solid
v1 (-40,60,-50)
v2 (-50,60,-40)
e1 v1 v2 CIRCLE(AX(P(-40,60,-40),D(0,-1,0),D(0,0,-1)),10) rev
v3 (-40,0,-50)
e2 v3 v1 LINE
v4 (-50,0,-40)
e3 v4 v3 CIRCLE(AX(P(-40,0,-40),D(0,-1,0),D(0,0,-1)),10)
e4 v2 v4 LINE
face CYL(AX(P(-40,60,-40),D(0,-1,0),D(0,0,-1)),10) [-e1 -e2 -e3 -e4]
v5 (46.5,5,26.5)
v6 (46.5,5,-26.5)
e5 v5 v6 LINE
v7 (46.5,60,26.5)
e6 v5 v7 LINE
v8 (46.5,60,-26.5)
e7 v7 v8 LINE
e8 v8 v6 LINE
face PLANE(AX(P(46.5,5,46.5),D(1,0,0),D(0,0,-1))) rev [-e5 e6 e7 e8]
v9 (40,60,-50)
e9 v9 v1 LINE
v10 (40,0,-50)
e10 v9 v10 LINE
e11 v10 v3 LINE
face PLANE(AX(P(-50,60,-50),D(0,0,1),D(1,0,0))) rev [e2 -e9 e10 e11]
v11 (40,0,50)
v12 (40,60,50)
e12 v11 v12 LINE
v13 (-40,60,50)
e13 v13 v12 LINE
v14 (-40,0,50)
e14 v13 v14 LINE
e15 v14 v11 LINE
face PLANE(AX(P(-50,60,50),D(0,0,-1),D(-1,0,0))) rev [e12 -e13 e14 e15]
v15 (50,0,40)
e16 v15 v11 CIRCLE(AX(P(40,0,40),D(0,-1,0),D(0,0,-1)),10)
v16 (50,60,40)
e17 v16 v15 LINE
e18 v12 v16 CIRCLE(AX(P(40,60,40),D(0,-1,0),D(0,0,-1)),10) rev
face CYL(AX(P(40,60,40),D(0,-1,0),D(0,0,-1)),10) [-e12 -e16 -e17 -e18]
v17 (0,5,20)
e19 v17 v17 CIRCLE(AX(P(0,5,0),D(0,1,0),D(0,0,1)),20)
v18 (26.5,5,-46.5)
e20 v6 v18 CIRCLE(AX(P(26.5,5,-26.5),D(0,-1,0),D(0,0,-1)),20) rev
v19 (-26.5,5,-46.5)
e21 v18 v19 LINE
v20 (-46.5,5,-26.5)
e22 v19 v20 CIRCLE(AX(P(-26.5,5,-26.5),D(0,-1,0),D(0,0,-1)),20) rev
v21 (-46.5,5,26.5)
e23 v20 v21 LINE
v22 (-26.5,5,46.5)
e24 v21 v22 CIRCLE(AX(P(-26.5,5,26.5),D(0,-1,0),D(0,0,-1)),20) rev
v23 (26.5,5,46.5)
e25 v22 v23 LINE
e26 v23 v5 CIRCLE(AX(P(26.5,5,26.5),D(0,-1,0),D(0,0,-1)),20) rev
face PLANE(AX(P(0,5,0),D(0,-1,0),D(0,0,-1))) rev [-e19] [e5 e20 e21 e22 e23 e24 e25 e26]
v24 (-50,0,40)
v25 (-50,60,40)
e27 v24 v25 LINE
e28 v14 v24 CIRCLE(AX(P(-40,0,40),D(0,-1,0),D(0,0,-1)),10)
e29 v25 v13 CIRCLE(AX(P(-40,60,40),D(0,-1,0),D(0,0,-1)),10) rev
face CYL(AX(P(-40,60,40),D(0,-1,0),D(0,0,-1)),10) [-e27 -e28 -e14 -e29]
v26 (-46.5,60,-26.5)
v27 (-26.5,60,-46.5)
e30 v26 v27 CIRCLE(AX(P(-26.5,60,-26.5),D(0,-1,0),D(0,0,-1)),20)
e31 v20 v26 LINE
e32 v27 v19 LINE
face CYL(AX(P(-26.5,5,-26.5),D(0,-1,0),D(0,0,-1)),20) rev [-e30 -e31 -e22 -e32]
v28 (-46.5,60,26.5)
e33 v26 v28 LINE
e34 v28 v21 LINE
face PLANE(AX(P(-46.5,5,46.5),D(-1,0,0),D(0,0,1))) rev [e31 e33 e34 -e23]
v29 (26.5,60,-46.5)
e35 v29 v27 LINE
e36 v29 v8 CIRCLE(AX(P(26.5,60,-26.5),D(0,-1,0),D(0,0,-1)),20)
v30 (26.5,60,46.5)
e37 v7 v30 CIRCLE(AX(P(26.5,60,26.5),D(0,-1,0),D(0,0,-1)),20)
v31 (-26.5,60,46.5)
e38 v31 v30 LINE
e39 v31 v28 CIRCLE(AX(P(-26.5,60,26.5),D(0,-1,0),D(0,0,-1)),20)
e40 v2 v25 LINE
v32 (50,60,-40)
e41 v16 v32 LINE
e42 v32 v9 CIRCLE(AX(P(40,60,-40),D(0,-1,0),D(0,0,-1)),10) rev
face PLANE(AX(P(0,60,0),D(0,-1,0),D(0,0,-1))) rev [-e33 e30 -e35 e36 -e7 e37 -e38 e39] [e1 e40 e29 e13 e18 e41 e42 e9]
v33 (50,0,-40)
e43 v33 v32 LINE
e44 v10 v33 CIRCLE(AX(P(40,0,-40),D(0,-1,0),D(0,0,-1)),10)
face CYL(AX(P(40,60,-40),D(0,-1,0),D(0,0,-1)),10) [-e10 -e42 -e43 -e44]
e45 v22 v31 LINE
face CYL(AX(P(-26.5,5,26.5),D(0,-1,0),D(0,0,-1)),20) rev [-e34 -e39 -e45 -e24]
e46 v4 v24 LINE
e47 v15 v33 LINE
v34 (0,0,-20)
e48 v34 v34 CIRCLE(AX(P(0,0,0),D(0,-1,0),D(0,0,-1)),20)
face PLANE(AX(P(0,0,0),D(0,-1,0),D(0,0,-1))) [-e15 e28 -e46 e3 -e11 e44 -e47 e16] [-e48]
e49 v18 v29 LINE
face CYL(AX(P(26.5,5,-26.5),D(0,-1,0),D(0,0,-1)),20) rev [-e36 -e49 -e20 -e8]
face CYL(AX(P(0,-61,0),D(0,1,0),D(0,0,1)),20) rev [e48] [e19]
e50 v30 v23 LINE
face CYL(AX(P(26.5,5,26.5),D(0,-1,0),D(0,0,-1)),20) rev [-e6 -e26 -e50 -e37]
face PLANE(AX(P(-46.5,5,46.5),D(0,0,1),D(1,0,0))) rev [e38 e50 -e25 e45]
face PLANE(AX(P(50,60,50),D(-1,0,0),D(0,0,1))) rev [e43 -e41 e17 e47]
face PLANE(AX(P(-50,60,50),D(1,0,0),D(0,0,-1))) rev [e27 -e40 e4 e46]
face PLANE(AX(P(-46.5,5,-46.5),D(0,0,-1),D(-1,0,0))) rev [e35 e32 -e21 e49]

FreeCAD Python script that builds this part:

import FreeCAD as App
import Part
import Sketcher

V = App.Vector


def edges_at(feature, points):
    """Names of the edges that pass closest to the given points."""
    edges = feature.Shape.Edges
    near = lambda p: min(range(len(edges)), key=lambda i: edges[i].distToShape(Part.Vertex(*p))[0])
    return sorted({f"Edge{near(p) + 1}" for p in points})

doc = App.newDocument("Part")
params = doc.addObject("Spreadsheet::Sheet", "Params")
for row, (alias, value) in enumerate([
    ("sketch1_width", "100 mm"),
    ("pad1_length", "60 mm"),
    ("sketch2_width", "93 mm"),
    ("pocket1_length", "55 mm"),
    ("sketch3_diameter", "40 mm"),
    ("pocket2_length", "66 mm"),
    ("fillet_radius", "20 mm"),
    ("fillet2_radius", "10 mm"),
], start=1):
    params.set(f"A{row}", alias)
    params.set(f"B{row}", "=" + value)
    params.setAlias(f"B{row}", alias)

body = doc.addObject("PartDesign::Body", "Body")

sketch1 = body.newObject("Sketcher::SketchObject", "Sketch")
sketch1.AttachmentSupport = (doc.getObject("XZ_Plane"), [""])
sketch1.MapMode = "FlatFace"
sketch1.addGeometry([
    Part.LineSegment(V(-50, -50, 0), V(-50, 50, 0)),
    Part.LineSegment(V(-50, 50, 0), V(50, 50, 0)),
    Part.LineSegment(V(50, 50, 0), V(50, -50, 0)),
    Part.LineSegment(V(50, -50, 0), V(-50, -50, 0)),
], False)
sketch1.addConstraint([
    Sketcher.Constraint("Coincident", 0, 2, 1, 1),
    Sketcher.Constraint("Coincident", 1, 2, 2, 1),
    Sketcher.Constraint("Coincident", 2, 2, 3, 1),
    Sketcher.Constraint("Coincident", 3, 2, 0, 1),
    Sketcher.Constraint("Vertical", 0),
    Sketcher.Constraint("Horizontal", 1),
    Sketcher.Constraint("Vertical", 2),
    Sketcher.Constraint("Horizontal", 3),
    Sketcher.Constraint("Symmetric", 0, 2, 2, 2, -1, 1),
    Sketcher.Constraint("Equal", 3, 0),
    Sketcher.Constraint("DistanceX", 1, 1, 1, 2, 100.0),
])
sketch1.setExpression("Constraints[10]", "Params.sketch1_width")
pad1 = body.newObject("PartDesign::Pad", "Pad")
pad1.Profile = sketch1
pad1.setExpression("Length", "Params.pad1_length")
pad1.Reversed = True

sketch2 = body.newObject("Sketcher::SketchObject", "Sketch001")
sketch2.AttachmentSupport = (doc.getObject("XZ_Plane"), [""])
sketch2.MapMode = "FlatFace"
sketch2.AttachmentOffset = App.Placement(V(0, 0, -60), App.Rotation())
sketch2.addGeometry([
    Part.LineSegment(V(-46.5, -46.5, 0), V(-46.5, 46.5, 0)),
    Part.LineSegment(V(-46.5, 46.5, 0), V(46.5, 46.5, 0)),
    Part.LineSegment(V(46.5, 46.5, 0), V(46.5, -46.5, 0)),
    Part.LineSegment(V(46.5, -46.5, 0), V(-46.5, -46.5, 0)),
], False)
sketch2.addConstraint([
    Sketcher.Constraint("Coincident", 0, 2, 1, 1),
    Sketcher.Constraint("Coincident", 1, 2, 2, 1),
    Sketcher.Constraint("Coincident", 2, 2, 3, 1),
    Sketcher.Constraint("Coincident", 3, 2, 0, 1),
    Sketcher.Constraint("Vertical", 0),
    Sketcher.Constraint("Horizontal", 1),
    Sketcher.Constraint("Vertical", 2),
    Sketcher.Constraint("Horizontal", 3),
    Sketcher.Constraint("Symmetric", 0, 2, 2, 2, -1, 1),
    Sketcher.Constraint("Equal", 3, 0),
    Sketcher.Constraint("DistanceX", 1, 1, 1, 2, 93.0),
])
sketch2.setExpression("Constraints[10]", "Params.sketch2_width")
pocket1 = body.newObject("PartDesign::Pocket", "Pocket")
pocket1.Profile = sketch2
pocket1.setExpression("Length", "Params.pocket1_length")
pocket1.Reversed = True

sketch3 = body.newObject("Sketcher::SketchObject", "Sketch002")
sketch3.AttachmentSupport = (doc.getObject("XZ_Plane"), [""])
sketch3.MapMode = "FlatFace"
sketch3.AttachmentOffset = App.Placement(V(0, 0, -5), App.Rotation())
sketch3.addGeometry(Part.Circle(V(0, 0, 0), V(0, 0, 1), 20), False)
sketch3.addConstraint([
    Sketcher.Constraint("Coincident", 0, 3, -1, 1),
    Sketcher.Constraint("Diameter", 0, 40.0),
])
sketch3.setExpression("Constraints[1]", "Params.sketch3_diameter")
pocket2 = body.newObject("PartDesign::Pocket", "Pocket001")
pocket2.Profile = sketch3
pocket2.setExpression("Length", "Params.pocket2_length")
pocket2.Reversed = True
doc.recompute()

fillet = body.newObject("PartDesign::Fillet", "Fillet")
fillet.Base = (pocket2, edges_at(pocket2, [
    (46.5, 32.5, -46.5),
    (46.5, 32.5, 46.5),
    (-46.5, 32.5, 46.5),
    (-46.5, 32.5, -46.5),
]))
fillet.setExpression("Radius", "Params.fillet_radius")
doc.recompute()

fillet2 = body.newObject("PartDesign::Fillet", "Fillet001")
fillet2.Base = (fillet, edges_at(fillet, [
    (50, 30, 50),
    (-50, 30, 50),
    (-50, 30, -50),
    (50, 30, -50),
]))
fillet2.setExpression("Radius", "Params.fillet2_radius")

doc.recompute()
